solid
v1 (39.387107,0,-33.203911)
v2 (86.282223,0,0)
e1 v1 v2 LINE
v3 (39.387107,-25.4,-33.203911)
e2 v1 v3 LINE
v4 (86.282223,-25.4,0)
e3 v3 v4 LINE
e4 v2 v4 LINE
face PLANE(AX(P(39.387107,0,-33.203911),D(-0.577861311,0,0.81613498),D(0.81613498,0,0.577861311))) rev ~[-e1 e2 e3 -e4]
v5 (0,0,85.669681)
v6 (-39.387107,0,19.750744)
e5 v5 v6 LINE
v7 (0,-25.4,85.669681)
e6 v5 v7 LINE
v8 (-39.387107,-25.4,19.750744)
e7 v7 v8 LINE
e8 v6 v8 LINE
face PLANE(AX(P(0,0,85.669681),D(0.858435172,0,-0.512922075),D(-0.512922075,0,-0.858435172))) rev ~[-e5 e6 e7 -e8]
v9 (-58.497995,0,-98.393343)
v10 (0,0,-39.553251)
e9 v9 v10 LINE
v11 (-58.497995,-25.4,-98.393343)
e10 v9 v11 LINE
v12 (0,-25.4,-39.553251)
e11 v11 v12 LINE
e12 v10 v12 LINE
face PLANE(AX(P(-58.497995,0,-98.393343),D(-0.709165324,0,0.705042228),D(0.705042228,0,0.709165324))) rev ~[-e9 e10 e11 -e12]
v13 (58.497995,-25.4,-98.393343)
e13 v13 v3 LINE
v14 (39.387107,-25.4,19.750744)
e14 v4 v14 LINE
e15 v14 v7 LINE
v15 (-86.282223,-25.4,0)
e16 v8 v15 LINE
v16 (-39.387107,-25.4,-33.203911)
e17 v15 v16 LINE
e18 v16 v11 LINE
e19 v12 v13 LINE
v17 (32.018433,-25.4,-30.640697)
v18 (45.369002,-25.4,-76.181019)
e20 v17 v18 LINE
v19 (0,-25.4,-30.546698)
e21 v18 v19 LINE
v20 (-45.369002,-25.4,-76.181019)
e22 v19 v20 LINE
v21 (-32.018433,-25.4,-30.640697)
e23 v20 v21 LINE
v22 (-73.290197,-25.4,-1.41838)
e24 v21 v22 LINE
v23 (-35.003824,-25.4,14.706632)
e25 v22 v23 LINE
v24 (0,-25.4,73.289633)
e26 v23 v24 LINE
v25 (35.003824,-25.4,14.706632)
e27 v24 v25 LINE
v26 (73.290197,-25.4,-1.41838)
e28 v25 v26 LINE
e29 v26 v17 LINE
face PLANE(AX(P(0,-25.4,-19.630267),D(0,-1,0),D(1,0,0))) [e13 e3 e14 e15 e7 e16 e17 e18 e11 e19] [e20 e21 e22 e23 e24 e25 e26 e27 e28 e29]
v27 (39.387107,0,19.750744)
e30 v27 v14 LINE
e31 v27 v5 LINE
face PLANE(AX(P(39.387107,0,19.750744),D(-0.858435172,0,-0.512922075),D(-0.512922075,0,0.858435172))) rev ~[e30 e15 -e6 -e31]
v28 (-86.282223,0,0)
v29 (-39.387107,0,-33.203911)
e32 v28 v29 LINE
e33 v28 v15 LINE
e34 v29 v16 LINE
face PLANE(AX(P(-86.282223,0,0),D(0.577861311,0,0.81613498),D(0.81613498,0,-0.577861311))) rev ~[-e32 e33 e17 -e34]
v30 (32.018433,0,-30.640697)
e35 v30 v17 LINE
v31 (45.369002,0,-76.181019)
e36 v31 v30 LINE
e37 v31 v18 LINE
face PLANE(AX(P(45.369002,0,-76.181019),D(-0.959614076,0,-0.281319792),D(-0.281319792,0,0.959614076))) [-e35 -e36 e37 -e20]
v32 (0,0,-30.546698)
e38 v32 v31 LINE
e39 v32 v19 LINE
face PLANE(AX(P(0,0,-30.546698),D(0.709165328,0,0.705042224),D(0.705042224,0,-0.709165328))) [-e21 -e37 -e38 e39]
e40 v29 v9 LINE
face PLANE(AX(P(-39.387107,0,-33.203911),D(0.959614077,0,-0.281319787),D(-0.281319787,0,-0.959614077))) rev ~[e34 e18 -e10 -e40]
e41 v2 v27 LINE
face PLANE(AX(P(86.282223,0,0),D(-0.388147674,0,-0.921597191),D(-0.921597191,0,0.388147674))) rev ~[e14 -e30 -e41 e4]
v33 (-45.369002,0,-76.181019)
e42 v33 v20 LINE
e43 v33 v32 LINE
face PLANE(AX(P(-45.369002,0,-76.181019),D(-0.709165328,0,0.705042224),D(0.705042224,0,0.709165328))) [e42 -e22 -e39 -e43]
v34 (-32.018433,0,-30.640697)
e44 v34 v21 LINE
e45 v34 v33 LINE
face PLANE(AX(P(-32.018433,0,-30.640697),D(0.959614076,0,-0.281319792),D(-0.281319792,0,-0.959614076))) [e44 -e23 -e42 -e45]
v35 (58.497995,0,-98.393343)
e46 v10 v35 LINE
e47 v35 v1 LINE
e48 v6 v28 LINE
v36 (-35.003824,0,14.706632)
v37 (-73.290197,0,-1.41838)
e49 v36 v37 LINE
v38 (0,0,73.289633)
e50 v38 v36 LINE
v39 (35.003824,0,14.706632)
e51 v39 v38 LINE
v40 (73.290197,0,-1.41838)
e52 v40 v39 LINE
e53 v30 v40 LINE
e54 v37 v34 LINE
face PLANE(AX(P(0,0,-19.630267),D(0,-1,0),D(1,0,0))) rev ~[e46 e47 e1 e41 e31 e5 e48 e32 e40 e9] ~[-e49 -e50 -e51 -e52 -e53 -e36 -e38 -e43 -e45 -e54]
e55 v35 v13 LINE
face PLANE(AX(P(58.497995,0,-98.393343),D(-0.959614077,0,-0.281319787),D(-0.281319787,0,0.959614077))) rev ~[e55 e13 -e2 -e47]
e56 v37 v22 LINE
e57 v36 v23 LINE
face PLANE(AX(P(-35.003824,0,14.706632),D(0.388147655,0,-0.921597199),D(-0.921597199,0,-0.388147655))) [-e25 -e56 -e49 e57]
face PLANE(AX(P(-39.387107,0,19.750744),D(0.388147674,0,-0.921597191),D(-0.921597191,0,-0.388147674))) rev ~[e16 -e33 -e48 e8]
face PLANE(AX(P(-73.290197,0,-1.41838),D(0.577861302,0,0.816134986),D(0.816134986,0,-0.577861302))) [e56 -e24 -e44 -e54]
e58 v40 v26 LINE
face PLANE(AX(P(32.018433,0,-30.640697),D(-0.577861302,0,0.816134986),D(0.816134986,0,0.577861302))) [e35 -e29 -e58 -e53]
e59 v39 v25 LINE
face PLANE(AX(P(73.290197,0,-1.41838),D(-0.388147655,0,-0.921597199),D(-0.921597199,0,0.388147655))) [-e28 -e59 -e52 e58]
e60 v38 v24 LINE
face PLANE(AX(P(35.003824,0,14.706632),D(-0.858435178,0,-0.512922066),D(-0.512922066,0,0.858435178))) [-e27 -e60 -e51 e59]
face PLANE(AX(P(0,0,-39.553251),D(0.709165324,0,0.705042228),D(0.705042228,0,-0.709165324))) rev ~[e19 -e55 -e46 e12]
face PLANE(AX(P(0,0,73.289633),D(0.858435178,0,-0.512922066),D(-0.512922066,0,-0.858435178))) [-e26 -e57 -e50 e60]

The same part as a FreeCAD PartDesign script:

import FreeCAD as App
import Part
import Sketcher
Q = App.Units.Quantity

doc = App.newDocument("Part")
params = doc.addObject("Spreadsheet::Sheet", "Params")
for row, (alias, value) in enumerate([
    ("pad1_length", "1 in"),
    ("pocket1_length", "61.637215 mm"),
], start=1):
    params.set(f"A{row}", alias)
    params.set(f"B{row}", "=" + value)
    params.setAlias(f"B{row}", alias)

body = doc.addObject("PartDesign::Body", "Body")

# Sketch on XZ plane
sketch1 = doc.addObject("Sketcher::SketchObject", "Sketch")
body.addObject(sketch1)
sketch1.AttachmentSupport = (doc.XZ_Plane, [""])
sketch1.MapMode = "FlatFace"
sketch1.addGeometry(Part.LineSegment(App.Vector(39, 20, 0), App.Vector(0, 86, 0)), False)
sketch1.addGeometry(Part.LineSegment(App.Vector(0, 86, 0), App.Vector(-39, 20, 0)), False)
sketch1.addGeometry(Part.LineSegment(App.Vector(-39, 20, 0), App.Vector(-86, 0, 0)), False)
sketch1.addGeometry(Part.LineSegment(App.Vector(-86, 0, 0), App.Vector(-39, -33, 0)), False)
sketch1.addGeometry(Part.LineSegment(App.Vector(-39, -33, 0), App.Vector(-58, -98, 0)), False)
sketch1.addGeometry(Part.LineSegment(App.Vector(-58, -98, 0), App.Vector(0, -40, 0)), False)
sketch1.addGeometry(Part.LineSegment(App.Vector(0, -40, 0), App.Vector(58, -98, 0)), False)
sketch1.addGeometry(Part.LineSegment(App.Vector(58, -98, 0), App.Vector(39, -33, 0)), False)
sketch1.addGeometry(Part.LineSegment(App.Vector(39, -33, 0), App.Vector(86, 0, 0)), False)
sketch1.addGeometry(Part.LineSegment(App.Vector(86, 0, 0), App.Vector(39, 20, 0)), False)
sketch1.addConstraint(Sketcher.Constraint("Coincident", 0, 2, 1, 1))
sketch1.addConstraint(Sketcher.Constraint("Coincident", 1, 2, 2, 1))
sketch1.addConstraint(Sketcher.Constraint("Coincident", 2, 2, 3, 1))
sketch1.addConstraint(Sketcher.Constraint("Coincident", 3, 2, 4, 1))
sketch1.addConstraint(Sketcher.Constraint("Coincident", 4, 2, 5, 1))
sketch1.addConstraint(Sketcher.Constraint("Coincident", 5, 2, 6, 1))
sketch1.addConstraint(Sketcher.Constraint("Coincident", 6, 2, 7, 1))
sketch1.addConstraint(Sketcher.Constraint("Coincident", 7, 2, 8, 1))
sketch1.addConstraint(Sketcher.Constraint("Coincident", 8, 2, 9, 1))
sketch1.addConstraint(Sketcher.Constraint("Coincident", 9, 2, 0, 1))
sketch1.addConstraint(Sketcher.Constraint("Symmetric", 2, 2, 8, 2, -1, 1))
sketch1.addConstraint(Sketcher.Constraint("Symmetric", 4, 2, 6, 2, -2))
sketch1.addConstraint(Sketcher.Constraint("Symmetric", 3, 2, 7, 2, -2))
sketch1.addConstraint(Sketcher.Constraint("Symmetric", 1, 2, 9, 2, -2))
sketch1.addConstraint(Sketcher.Constraint("PointOnObject", 0, 2, -2))
sketch1.addConstraint(Sketcher.Constraint("PointOnObject", 2, 2, -1))
sketch1.addConstraint(Sketcher.Constraint("PointOnObject", 5, 2, -2))
sketch1.addConstraint(Sketcher.Constraint("Vertical", 1, 2, 3, 2))
sketch1.addConstraint(Sketcher.Constraint("Distance", 3, Q("57.46 mm")))
sketch1.addConstraint(Sketcher.Constraint("Distance", 0, Q("76.789651 mm")))
sketch1.addConstraint(Sketcher.Constraint("Distance", 5, Q("82.97091 mm")))
sketch1.addConstraint(Sketcher.Constraint("DistanceY", -1, 1, 0, 2, Q("85.669681 mm")))
sketch1.addConstraint(Sketcher.Constraint("DistanceY", 3, 2, -1, 1, Q("33.203911 mm")))
sketch1.addConstraint(Sketcher.Constraint("DistanceY", 5, 2, -1, 1, Q("39.553251 mm")))
sketch1.addConstraint(Sketcher.Constraint("DistanceX", 4, 2, 3, 2, Q("19.110888 mm")))
sketch1.addConstraint(Sketcher.Constraint("DistanceX", 4, 2, 6, 2, Q("116.99599 mm")))
pad1 = doc.addObject("PartDesign::Pad", "Pad")
body.addObject(pad1)
pad1.Profile = sketch1
pad1.setExpression("Length", "Params.pad1_length")

# Sketch on XZ plane
sketch2 = doc.addObject("Sketcher::SketchObject", "Sketch001")
body.addObject(sketch2)
sketch2.AttachmentSupport = (doc.XZ_Plane, [""])
sketch2.MapMode = "FlatFace"
sketch2.addGeometry(Part.LineSegment(App.Vector(32, -31, 0), App.Vector(73, -1, 0)), False)
sketch2.addGeometry(Part.LineSegment(App.Vector(73, -1, 0), App.Vector(35, 15, 0)), False)
sketch2.addGeometry(Part.LineSegment(App.Vector(35, 15, 0), App.Vector(0, 73, 0)), False)
sketch2.addGeometry(Part.LineSegment(App.Vector(0, 73, 0), App.Vector(-35, 15, 0)), False)
sketch2.addGeometry(Part.LineSegment(App.Vector(-35, 15, 0), App.Vector(-73, -1, 0)), False)
sketch2.addGeometry(Part.LineSegment(App.Vector(-73, -1, 0), App.Vector(-32, -31, 0)), False)
sketch2.addGeometry(Part.LineSegment(App.Vector(-32, -31, 0), App.Vector(-45, -76, 0)), False)
sketch2.addGeometry(Part.LineSegment(App.Vector(-45, -76, 0), App.Vector(0, -31, 0)), False)
sketch2.addGeometry(Part.LineSegment(App.Vector(0, -31, 0), App.Vector(45, -76, 0)), False)
sketch2.addGeometry(Part.LineSegment(App.Vector(45, -76, 0), App.Vector(32, -31, 0)), False)
sketch2.addConstraint(Sketcher.Constraint("Coincident", 0, 2, 1, 1))
sketch2.addConstraint(Sketcher.Constraint("Coincident", 1, 2, 2, 1))
sketch2.addConstraint(Sketcher.Constraint("Coincident", 2, 2, 3, 1))
sketch2.addConstraint(Sketcher.Constraint("Coincident", 3, 2, 4, 1))
sketch2.addConstraint(Sketcher.Constraint("Coincident", 4, 2, 5, 1))
sketch2.addConstraint(Sketcher.Constraint("Coincident", 5, 2, 6, 1))
sketch2.addConstraint(Sketcher.Constraint("Coincident", 6, 2, 7, 1))
sketch2.addConstraint(Sketcher.Constraint("Coincident", 7, 2, 8, 1))
sketch2.addConstraint(Sketcher.Constraint("Coincident", 8, 2, 9, 1))
sketch2.addConstraint(Sketcher.Constraint("Coincident", 9, 2, 0, 1))
sketch2.addConstraint(Sketcher.Constraint("Symmetric", 1, 2, 3, 2, -2))
sketch2.addConstraint(Sketcher.Constraint("Symmetric", 0, 2, 4, 2, -2))
sketch2.addConstraint(Sketcher.Constraint("Symmetric", 6, 2, 8, 2, -2))
sketch2.addConstraint(Sketcher.Constraint("Symmetric", 5, 2, 9, 2, -2))
sketch2.addConstraint(Sketcher.Constraint("PointOnObject", 2, 2, -2))
sketch2.addConstraint(Sketcher.Constraint("PointOnObject", 7, 2, -2))
sketch2.addConstraint(Sketcher.Constraint("Distance", 1, Q("41.5435 mm")))
sketch2.addConstraint(Sketcher.Constraint("DistanceY", 1, 2, 2, 2, Q("58.583001 mm")))
sketch2.addConstraint(Sketcher.Constraint("DistanceX", 6, 2, 0, 2, Q("118.659199 mm")))
sketch2.addConstraint(Sketcher.Constraint("DistanceY", 5, 2, 7, 2, Q("0.093999 mm")))
sketch2.addConstraint(Sketcher.Constraint("Distance", 7, Q("64.34934 mm")))
sketch2.addConstraint(Sketcher.Constraint("DistanceY", 0, 2, -1, 1, Q("1.41838 mm")))
sketch2.addConstraint(Sketcher.Constraint("DistanceY", 6, 2, -1, 1, Q("76.181019 mm")))
sketch2.addConstraint(Sketcher.Constraint("DistanceX", 3, 2, 1, 2, Q("70.007648 mm")))
sketch2.addConstraint(Sketcher.Constraint("DistanceX", 3, 2, 0, 2, Q("108.294021 mm")))
sketch2.addConstraint(Sketcher.Constraint("DistanceX", 3, 2, 5, 2, Q("2.985391 mm")))
pocket1 = doc.addObject("PartDesign::Pocket", "Pocket")
body.addObject(pocket1)
pocket1.Profile = sketch2
pocket1.setExpression("Length", "Params.pocket1_length")
pocket1.Reversed = True

doc.recompute()
